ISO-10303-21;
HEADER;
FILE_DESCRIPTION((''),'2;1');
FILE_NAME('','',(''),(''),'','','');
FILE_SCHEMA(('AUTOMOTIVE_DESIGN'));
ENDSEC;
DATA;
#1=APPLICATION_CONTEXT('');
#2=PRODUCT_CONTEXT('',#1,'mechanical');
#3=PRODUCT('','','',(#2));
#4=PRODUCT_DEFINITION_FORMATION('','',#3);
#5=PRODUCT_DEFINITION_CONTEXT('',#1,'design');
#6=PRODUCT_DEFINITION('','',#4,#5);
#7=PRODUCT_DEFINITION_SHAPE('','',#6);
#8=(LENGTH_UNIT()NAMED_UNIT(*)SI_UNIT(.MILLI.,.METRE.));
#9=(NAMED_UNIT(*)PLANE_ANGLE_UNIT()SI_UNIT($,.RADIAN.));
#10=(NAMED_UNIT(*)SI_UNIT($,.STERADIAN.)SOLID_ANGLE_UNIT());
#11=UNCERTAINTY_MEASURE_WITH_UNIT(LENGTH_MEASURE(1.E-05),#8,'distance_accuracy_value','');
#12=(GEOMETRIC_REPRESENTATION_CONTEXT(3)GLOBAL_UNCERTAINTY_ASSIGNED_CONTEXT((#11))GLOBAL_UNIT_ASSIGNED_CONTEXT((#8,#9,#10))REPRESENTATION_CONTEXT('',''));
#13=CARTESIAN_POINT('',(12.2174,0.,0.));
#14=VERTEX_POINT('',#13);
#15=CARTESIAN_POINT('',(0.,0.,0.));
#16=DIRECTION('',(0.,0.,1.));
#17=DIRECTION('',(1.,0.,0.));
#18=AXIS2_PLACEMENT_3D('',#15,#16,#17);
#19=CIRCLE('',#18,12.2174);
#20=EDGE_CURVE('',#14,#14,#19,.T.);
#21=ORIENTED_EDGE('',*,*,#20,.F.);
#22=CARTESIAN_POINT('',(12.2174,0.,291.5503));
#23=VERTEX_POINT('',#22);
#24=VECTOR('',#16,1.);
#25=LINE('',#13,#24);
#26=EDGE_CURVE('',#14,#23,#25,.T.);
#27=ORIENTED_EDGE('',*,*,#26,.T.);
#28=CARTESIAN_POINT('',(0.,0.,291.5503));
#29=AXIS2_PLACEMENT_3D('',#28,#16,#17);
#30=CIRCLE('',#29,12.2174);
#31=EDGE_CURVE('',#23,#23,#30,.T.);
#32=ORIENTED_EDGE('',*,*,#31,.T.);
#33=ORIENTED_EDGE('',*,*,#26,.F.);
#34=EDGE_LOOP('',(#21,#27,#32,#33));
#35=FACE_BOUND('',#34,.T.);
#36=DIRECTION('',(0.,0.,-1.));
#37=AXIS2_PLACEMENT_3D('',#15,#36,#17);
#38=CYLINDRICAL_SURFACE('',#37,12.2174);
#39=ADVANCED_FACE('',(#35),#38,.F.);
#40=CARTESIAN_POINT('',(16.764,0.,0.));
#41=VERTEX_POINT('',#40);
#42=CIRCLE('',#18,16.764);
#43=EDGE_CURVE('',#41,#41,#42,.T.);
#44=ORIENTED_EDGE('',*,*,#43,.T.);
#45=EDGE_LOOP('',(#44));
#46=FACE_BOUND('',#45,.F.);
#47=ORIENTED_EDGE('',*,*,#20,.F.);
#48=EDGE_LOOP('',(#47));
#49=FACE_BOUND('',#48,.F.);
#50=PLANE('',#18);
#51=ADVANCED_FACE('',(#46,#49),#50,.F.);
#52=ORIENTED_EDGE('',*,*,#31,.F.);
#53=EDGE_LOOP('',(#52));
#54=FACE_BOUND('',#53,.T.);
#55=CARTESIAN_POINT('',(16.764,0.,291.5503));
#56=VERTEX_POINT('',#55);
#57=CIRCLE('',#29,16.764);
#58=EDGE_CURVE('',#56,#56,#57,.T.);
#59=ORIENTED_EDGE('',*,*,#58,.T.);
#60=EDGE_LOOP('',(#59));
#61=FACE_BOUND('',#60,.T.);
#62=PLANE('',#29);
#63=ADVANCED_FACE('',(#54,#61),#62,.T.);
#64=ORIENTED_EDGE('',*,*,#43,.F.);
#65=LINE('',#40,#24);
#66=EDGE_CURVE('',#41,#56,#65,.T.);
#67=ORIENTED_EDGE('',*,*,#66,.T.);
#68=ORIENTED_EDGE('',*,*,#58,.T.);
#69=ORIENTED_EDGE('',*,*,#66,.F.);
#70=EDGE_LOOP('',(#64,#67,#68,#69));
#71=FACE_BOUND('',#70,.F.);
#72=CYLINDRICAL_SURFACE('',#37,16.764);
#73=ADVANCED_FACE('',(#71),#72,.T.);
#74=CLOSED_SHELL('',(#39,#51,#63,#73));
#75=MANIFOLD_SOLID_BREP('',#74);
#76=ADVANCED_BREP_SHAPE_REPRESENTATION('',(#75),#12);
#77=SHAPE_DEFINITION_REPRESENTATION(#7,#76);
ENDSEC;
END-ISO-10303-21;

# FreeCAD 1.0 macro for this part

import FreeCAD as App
import Part
import Sketcher
Q = App.Units.Quantity

doc = App.newDocument("Part")
body = doc.addObject("PartDesign::Body", "Body")

sketch1 = doc.addObject("Sketcher::SketchObject", "Sketch")
body.addObject(sketch1)
sketch1.AttachmentSupport = (doc.XY_Plane, [""])
sketch1.MapMode = "FlatFace"
sketch1.addGeometry([
    Part.Circle(App.Vector(0, 0, 0), App.Vector(0, 0, 1), 17),
    Part.Circle(App.Vector(0, 0, 0), App.Vector(0, 0, 1), 12),
], False)
sketch1.addConstraint([
    Sketcher.Constraint("Coincident", 0, 3, -1, 1),
    Sketcher.Constraint("Coincident", 1, 3, -1, 1),
    Sketcher.Constraint("Diameter", 0, Q("1.32 in")),
    Sketcher.Constraint("Diameter", 1, Q("0.962 in")),
])
pad1 = doc.addObject("PartDesign::Pad", "Pad")
body.addObject(pad1)
pad1.Profile = sketch1
pad1.Length = 291.5503

doc.recompute()
